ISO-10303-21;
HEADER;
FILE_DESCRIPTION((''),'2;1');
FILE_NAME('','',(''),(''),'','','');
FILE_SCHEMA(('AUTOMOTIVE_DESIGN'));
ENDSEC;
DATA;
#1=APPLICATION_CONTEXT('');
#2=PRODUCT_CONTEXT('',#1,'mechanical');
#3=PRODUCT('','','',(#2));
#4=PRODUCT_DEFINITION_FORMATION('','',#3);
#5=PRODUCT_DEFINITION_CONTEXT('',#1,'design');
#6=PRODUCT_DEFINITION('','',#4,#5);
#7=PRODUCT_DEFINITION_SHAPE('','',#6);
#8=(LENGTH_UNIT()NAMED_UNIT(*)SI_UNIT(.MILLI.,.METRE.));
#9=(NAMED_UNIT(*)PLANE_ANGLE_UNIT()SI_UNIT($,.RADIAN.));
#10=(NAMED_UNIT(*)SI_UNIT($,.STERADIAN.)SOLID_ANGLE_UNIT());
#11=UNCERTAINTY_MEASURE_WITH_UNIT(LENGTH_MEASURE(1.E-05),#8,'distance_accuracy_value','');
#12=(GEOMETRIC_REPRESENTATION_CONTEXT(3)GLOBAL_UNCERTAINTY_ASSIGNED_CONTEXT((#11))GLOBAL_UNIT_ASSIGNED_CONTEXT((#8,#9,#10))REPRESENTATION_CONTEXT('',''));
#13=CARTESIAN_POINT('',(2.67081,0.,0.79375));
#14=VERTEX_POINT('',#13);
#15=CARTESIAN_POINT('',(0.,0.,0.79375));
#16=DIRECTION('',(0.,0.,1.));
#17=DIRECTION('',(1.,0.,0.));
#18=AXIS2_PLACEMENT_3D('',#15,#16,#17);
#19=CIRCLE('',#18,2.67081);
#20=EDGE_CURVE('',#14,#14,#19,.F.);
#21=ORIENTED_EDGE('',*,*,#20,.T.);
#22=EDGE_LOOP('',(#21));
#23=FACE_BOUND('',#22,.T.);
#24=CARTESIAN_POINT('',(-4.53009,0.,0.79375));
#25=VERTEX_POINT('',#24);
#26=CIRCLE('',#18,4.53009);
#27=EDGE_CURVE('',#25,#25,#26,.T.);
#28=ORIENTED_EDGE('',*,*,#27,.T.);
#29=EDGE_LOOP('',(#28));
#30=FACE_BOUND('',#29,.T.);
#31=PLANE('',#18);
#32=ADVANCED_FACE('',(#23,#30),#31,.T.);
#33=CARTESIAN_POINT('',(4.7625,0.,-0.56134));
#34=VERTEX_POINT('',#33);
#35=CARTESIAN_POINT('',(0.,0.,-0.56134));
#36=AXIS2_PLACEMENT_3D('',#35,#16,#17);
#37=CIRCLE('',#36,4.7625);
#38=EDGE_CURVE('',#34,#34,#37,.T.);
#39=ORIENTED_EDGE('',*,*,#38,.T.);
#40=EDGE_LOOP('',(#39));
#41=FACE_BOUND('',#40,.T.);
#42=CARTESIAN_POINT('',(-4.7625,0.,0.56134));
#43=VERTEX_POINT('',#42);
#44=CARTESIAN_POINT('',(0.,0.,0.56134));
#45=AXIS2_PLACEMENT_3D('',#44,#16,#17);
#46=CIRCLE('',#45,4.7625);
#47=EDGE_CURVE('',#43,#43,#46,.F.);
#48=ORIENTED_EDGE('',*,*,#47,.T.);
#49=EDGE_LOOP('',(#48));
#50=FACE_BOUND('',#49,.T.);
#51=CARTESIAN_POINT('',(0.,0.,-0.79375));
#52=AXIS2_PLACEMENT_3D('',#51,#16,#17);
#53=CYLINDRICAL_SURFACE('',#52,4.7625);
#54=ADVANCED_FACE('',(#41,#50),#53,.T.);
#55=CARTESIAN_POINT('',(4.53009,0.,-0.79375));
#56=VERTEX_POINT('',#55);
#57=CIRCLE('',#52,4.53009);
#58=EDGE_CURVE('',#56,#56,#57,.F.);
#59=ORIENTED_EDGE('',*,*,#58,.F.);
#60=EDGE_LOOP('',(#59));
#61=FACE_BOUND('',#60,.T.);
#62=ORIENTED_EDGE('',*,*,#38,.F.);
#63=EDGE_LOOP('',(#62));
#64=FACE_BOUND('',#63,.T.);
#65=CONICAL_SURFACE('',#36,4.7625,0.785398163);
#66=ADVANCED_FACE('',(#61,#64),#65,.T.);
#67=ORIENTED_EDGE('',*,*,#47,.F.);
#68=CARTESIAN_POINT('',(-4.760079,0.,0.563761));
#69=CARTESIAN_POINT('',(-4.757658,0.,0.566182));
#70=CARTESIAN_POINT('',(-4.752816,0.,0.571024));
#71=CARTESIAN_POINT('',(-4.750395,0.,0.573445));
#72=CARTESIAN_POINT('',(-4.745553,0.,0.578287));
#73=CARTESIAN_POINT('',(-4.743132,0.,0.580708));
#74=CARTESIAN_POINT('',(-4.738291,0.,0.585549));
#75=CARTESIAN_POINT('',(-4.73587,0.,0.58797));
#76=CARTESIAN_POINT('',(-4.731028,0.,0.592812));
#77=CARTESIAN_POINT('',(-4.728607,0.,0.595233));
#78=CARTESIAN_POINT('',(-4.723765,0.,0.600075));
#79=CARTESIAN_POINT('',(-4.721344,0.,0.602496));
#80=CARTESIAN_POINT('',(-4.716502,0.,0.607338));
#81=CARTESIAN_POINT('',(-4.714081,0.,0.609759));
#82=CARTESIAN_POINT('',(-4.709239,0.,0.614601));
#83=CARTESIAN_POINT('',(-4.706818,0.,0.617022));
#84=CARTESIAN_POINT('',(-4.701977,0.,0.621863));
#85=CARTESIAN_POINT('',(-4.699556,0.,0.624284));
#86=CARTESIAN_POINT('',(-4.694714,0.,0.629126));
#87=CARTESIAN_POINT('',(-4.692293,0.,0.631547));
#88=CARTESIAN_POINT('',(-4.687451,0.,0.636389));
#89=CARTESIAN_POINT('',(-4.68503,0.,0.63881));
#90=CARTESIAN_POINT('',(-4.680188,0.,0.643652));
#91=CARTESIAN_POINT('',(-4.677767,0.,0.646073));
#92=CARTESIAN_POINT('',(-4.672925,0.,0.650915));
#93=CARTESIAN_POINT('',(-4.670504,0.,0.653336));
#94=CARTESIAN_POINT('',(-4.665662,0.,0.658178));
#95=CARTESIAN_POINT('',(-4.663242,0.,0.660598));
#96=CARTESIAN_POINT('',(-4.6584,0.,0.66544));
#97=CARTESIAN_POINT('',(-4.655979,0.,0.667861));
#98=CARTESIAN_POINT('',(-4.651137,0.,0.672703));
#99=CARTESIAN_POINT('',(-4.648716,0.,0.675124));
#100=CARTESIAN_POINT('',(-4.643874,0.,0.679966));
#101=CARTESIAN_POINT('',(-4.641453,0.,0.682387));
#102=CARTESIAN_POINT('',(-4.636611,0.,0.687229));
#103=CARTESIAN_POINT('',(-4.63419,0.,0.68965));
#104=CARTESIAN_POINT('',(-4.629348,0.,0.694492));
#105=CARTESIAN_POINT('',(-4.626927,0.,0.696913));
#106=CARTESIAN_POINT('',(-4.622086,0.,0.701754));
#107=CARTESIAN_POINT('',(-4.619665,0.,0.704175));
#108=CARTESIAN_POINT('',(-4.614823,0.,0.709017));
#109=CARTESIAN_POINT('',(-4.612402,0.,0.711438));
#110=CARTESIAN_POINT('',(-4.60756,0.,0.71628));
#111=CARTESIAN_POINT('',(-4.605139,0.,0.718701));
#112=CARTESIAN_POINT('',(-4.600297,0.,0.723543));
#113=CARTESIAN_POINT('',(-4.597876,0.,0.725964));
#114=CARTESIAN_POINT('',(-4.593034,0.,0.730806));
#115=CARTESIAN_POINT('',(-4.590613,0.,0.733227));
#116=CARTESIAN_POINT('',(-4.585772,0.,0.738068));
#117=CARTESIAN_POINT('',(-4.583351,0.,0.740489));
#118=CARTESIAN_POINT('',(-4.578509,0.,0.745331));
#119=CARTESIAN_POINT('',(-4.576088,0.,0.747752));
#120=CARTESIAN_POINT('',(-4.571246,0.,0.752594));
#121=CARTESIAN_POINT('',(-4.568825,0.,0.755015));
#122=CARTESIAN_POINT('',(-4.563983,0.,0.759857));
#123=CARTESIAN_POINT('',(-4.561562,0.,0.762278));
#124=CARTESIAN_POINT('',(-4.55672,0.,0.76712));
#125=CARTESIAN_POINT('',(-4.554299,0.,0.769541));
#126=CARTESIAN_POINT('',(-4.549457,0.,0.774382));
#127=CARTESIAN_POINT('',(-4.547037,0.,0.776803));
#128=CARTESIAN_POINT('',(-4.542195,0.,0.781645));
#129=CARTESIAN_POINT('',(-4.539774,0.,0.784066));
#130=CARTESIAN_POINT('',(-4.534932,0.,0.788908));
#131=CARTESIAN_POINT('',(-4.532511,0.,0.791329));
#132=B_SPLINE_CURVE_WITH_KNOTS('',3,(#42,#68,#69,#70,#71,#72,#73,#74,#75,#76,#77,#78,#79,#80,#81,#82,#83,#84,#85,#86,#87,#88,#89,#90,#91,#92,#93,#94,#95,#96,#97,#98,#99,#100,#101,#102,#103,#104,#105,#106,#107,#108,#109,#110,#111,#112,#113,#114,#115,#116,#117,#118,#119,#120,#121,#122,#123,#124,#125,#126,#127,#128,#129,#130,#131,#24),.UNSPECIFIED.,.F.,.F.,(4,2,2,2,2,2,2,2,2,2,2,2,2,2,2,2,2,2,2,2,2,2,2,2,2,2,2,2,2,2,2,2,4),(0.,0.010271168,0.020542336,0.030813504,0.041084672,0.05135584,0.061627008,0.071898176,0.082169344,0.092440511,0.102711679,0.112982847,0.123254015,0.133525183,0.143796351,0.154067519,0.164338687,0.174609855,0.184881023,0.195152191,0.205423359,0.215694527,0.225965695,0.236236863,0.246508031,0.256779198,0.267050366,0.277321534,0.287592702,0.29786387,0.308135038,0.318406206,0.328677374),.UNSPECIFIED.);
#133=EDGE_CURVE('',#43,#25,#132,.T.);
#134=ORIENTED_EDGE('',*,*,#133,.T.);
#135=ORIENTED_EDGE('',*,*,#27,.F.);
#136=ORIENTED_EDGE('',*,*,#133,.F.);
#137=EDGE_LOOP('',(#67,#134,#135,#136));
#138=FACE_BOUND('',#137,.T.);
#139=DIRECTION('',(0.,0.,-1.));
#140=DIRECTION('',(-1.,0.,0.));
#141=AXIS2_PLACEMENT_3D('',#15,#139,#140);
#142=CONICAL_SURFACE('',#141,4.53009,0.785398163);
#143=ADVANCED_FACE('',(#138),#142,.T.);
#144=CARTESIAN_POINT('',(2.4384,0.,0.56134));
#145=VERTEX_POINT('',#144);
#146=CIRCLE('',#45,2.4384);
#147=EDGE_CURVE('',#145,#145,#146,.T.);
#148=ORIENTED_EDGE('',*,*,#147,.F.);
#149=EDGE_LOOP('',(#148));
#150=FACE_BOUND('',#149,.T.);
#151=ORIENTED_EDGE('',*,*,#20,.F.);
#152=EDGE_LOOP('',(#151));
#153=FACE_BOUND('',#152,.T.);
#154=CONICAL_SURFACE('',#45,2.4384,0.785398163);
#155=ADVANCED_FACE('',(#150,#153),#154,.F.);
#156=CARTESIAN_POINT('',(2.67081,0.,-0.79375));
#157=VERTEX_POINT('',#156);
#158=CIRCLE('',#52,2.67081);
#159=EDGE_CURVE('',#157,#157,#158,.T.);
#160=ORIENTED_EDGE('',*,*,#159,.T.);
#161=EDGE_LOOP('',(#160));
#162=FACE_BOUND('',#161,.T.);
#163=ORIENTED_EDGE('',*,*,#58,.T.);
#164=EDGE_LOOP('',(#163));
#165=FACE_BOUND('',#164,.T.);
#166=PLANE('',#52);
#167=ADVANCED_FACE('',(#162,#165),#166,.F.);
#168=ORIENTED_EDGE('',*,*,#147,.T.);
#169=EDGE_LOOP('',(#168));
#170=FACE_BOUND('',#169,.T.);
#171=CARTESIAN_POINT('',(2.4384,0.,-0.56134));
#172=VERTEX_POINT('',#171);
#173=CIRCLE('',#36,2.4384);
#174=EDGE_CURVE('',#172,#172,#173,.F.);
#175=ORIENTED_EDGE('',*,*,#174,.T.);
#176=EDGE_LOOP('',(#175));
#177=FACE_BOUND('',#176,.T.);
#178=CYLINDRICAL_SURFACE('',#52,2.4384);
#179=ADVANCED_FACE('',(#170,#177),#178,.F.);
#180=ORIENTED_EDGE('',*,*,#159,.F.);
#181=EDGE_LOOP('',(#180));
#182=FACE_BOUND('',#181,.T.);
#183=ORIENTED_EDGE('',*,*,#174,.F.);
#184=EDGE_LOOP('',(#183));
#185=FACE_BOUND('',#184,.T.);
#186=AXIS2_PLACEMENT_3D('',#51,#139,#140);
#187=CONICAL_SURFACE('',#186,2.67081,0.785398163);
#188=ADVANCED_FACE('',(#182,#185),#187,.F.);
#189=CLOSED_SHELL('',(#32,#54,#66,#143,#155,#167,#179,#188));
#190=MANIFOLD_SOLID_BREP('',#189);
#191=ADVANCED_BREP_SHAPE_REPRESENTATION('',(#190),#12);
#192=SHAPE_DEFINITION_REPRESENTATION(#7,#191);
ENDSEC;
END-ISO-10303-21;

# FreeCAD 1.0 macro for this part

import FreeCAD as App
import Part
import Sketcher
Q = App.Units.Quantity


def edges_at(feature, points):
    """Names of the edges that pass closest to the given points."""
    edges = feature.Shape.Edges
    near = lambda p: min(range(len(edges)), key=lambda i: edges[i].distToShape(Part.Vertex(*p))[0])
    return sorted({f"Edge{near(p) + 1}" for p in points})

doc = App.newDocument("Part")
body = doc.addObject("PartDesign::Body", "Body")

# Sketch on XY plane
sketch1 = body.newObject("Sketcher::SketchObject", "Sketch")
sketch1.AttachmentSupport = (doc.getObject("XY_Plane"), [""])
sketch1.MapMode = "FlatFace"
sketch1.addGeometry(Part.Circle(App.Vector(0, 0, 0), App.Vector(0, 0, 1), 4.7625), False)
sketch1.addGeometry(Part.Circle(App.Vector(0, 0, 0), App.Vector(0, 0, 1), 2.4384), False)
sketch1.addConstraint(Sketcher.Constraint("Coincident", 0, 3, -1, 1))
sketch1.addConstraint(Sketcher.Constraint("Coincident", 1, 3, -1, 1))
sketch1.addConstraint(Sketcher.Constraint("Diameter", 0, Q("0.375 in")))
sketch1.addConstraint(Sketcher.Constraint("Diameter", 1, Q("0.192 in")))
pad1 = body.newObject("PartDesign::Pad", "Pad")
pad1.Profile = sketch1
pad1.Type = "TwoLengths"
pad1.Length = Q("0.03125 in")
pad1.Length2 = Q("0.03125 in")
doc.recompute()

chamfer = body.newObject("PartDesign::Chamfer", "Chamfer")
chamfer.Base = (pad1, edges_at(pad1, [
    (-4.763, 0, -0.794),
    (-2.438, 0, -0.794),
    (-4.763, 0, 0.794),
    (-2.438, 0, 0.794),
]))
chamfer.Size = 0.23241

doc.recompute()
